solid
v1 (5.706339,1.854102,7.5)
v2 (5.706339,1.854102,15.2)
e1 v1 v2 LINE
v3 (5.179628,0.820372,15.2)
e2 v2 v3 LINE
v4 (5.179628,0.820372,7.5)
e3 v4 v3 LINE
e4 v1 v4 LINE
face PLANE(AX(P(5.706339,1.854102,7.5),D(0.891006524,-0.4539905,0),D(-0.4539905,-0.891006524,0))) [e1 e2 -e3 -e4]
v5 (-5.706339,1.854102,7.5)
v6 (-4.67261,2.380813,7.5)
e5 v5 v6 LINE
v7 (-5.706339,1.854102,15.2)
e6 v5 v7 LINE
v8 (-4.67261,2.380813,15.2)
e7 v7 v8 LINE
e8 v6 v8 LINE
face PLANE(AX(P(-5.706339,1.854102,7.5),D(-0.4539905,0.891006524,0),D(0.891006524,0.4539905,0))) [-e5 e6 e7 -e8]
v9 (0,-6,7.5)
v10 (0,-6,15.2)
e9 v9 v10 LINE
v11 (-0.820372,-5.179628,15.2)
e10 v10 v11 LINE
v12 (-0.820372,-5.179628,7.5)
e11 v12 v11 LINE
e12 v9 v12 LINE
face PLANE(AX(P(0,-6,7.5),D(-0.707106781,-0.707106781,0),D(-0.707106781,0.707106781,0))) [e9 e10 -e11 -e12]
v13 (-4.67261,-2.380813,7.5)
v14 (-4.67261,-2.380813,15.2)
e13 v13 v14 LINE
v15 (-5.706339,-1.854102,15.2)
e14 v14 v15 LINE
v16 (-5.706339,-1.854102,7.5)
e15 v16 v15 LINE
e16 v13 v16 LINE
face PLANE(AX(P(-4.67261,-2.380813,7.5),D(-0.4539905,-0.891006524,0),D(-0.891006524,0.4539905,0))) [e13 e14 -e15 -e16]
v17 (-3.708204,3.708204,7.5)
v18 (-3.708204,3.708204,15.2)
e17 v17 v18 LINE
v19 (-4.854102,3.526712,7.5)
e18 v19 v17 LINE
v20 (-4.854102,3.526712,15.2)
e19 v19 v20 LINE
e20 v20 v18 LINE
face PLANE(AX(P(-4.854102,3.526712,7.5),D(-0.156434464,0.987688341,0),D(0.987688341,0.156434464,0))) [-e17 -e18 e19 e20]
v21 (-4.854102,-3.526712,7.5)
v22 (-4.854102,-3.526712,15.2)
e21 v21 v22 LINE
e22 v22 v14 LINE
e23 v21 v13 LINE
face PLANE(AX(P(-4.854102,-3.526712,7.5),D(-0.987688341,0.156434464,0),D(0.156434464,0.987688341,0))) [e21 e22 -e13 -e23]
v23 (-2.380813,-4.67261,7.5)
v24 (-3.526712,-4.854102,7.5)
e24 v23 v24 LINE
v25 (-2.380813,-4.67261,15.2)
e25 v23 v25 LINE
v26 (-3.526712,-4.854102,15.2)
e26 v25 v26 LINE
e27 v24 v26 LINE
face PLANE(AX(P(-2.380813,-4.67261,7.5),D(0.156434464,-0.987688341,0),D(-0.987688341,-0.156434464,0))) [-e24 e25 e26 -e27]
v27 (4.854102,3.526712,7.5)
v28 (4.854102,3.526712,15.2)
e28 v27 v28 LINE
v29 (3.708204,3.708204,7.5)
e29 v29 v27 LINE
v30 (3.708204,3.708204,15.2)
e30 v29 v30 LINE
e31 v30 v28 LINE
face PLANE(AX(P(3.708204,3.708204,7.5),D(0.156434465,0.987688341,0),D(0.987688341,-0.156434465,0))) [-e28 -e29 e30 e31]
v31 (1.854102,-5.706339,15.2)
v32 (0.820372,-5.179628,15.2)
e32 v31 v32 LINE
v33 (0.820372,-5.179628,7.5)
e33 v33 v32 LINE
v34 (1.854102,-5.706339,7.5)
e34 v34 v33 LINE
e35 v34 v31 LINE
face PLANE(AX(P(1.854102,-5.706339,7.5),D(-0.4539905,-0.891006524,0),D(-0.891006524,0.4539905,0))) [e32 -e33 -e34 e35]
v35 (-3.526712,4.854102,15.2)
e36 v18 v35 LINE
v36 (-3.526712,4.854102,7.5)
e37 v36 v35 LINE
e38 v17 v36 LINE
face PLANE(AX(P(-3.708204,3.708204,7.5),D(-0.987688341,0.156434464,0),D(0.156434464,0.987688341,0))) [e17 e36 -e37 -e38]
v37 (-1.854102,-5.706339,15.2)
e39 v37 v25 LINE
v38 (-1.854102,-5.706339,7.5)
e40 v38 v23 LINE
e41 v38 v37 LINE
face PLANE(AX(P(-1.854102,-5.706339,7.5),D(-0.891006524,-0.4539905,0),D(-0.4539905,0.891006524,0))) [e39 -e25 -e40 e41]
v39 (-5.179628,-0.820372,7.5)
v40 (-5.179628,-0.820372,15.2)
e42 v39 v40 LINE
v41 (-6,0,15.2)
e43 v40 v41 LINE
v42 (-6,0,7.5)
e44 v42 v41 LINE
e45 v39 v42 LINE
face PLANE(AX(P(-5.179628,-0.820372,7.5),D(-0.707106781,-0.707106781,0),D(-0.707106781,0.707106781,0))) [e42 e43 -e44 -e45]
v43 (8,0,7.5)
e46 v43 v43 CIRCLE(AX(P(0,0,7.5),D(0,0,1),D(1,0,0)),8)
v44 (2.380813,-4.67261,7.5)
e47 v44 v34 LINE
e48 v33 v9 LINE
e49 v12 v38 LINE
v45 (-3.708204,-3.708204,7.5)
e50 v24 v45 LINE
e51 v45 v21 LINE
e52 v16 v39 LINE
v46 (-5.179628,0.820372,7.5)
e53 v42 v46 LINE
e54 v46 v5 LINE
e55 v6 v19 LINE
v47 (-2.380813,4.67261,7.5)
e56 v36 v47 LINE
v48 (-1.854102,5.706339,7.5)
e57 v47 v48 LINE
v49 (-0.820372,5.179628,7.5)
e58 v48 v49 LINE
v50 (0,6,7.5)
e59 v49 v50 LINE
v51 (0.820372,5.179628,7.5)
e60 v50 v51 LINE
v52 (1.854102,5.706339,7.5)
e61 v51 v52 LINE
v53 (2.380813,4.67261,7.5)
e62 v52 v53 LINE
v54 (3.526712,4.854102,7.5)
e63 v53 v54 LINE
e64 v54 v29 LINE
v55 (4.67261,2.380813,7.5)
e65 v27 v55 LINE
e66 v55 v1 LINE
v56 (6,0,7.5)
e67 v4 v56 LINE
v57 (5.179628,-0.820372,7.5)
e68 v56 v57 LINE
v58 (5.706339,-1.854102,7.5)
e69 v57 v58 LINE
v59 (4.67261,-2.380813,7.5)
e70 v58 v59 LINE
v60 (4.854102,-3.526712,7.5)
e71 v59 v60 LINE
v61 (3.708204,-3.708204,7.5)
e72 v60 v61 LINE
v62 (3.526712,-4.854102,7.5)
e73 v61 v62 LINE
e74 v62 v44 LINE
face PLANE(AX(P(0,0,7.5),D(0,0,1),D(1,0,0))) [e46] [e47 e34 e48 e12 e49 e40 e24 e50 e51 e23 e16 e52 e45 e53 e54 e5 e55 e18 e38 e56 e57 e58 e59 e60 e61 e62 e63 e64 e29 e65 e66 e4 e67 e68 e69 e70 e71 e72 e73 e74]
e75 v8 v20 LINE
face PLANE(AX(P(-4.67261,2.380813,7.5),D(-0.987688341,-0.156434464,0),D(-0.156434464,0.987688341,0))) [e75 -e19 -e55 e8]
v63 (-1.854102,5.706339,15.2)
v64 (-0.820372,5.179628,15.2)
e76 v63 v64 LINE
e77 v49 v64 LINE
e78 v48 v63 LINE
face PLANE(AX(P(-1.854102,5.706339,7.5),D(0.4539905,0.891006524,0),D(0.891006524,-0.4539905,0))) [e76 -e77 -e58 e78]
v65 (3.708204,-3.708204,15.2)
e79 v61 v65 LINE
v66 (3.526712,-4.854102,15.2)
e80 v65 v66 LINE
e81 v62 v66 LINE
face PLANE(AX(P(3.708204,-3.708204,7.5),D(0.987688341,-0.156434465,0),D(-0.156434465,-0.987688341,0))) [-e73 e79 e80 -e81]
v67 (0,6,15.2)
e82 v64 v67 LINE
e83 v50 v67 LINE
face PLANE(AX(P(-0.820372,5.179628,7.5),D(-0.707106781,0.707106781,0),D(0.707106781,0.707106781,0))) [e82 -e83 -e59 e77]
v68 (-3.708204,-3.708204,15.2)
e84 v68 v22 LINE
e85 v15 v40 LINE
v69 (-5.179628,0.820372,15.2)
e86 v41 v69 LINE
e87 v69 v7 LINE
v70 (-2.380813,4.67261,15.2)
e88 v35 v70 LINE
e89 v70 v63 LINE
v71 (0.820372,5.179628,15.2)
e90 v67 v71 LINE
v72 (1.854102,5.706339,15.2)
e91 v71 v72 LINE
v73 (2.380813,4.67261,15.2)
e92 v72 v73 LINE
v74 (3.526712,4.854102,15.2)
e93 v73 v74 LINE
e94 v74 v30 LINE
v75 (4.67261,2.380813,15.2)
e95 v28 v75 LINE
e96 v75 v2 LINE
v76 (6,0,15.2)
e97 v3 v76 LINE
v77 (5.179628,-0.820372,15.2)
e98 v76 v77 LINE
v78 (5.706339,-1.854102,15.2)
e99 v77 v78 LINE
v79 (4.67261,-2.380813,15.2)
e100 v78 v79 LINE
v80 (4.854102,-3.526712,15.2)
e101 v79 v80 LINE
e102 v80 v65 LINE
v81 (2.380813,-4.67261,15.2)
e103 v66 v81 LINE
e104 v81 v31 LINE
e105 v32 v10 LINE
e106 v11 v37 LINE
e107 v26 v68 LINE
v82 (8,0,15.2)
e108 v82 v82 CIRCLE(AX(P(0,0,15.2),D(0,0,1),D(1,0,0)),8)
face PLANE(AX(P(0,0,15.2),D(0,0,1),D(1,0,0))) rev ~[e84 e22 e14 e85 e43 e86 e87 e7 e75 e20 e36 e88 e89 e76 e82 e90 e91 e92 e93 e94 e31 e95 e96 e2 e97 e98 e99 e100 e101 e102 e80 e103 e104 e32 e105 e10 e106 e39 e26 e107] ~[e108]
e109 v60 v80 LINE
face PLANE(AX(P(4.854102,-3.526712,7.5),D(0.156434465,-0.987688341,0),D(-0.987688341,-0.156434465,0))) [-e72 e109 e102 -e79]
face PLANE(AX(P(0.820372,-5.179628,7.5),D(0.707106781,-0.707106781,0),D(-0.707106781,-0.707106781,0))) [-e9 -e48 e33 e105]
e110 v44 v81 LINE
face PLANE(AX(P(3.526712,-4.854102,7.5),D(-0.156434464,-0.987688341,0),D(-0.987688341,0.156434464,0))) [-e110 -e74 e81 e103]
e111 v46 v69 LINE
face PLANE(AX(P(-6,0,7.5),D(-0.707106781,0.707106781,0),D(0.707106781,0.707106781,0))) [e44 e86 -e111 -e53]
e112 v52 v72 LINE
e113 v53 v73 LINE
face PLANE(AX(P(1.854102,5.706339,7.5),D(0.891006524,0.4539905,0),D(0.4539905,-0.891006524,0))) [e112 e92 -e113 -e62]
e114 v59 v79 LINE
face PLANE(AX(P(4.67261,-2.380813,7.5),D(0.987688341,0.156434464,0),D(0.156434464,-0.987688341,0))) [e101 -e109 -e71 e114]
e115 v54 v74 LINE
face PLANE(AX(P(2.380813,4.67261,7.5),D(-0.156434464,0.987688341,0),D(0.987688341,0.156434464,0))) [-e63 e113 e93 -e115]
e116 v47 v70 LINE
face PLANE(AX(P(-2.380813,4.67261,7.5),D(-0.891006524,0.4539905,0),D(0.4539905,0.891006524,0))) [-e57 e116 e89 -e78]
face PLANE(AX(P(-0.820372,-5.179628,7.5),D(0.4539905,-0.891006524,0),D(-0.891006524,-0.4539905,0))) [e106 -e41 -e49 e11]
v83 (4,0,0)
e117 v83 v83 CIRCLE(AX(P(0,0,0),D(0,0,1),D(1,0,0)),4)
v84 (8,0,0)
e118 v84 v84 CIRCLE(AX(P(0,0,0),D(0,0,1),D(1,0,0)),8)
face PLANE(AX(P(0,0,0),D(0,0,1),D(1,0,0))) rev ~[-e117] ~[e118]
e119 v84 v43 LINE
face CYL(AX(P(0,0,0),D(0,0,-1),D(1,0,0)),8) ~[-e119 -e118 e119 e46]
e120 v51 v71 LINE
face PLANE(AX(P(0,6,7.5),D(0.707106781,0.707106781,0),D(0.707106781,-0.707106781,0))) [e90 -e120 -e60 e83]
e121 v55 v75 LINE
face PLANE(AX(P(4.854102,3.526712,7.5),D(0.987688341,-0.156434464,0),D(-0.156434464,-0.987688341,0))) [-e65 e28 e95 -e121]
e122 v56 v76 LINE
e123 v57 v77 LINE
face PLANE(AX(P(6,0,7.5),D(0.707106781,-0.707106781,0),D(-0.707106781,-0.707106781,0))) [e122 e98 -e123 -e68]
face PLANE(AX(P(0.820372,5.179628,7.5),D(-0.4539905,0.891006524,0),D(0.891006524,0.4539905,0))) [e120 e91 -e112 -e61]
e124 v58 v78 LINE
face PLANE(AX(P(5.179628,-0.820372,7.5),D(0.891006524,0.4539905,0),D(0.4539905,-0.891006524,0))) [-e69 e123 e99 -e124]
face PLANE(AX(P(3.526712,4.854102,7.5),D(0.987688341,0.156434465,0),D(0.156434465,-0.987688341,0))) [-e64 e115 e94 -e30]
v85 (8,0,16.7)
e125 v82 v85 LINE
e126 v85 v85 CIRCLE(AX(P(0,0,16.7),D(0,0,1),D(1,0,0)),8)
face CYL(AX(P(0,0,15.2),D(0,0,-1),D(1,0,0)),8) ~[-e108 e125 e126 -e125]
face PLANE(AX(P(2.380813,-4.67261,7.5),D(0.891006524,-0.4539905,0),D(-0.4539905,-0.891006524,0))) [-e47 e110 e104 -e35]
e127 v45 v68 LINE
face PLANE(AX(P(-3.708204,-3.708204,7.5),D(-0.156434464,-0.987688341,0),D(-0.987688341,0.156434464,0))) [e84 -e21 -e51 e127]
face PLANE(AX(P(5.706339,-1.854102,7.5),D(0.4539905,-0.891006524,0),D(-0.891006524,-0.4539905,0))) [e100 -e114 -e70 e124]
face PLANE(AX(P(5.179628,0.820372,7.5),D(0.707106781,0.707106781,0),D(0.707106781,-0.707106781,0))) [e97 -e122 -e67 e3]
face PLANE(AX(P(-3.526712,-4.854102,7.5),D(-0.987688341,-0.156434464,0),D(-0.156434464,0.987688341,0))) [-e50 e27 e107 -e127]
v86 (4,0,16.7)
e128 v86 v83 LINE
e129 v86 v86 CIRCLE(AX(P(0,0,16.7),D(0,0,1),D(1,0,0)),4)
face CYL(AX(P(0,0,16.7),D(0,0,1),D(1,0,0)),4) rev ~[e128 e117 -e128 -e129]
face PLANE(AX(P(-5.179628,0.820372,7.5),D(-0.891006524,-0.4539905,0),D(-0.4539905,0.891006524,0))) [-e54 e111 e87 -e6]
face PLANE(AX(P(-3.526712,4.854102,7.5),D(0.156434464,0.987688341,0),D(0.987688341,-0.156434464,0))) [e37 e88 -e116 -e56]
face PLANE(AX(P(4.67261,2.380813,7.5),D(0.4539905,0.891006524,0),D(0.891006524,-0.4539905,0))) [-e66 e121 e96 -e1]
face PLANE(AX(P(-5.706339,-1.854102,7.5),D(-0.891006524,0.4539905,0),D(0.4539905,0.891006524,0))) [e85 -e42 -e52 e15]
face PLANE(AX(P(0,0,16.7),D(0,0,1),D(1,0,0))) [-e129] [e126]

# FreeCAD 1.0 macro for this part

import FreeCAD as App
import Part
import Sketcher
Q = App.Units.Quantity

doc = App.newDocument("Part")
body = doc.addObject("PartDesign::Body", "Body")

# Sketch on XY plane
sketch1 = body.newObject("Sketcher::SketchObject", "Sketch")
sketch1.AttachmentSupport = (doc.getObject("XY_Plane"), [""])
sketch1.MapMode = "FlatFace"
sketch1.addGeometry(Part.Circle(App.Vector(0, 0, 0), App.Vector(0, 0, 1), 8), False)
sketch1.addConstraint([
    Sketcher.Constraint("Coincident", 0, 3, -1, 1),
    Sketcher.Constraint("Diameter", 0, 16.0),
])
pad1 = body.newObject("PartDesign::Pad", "Pad")
pad1.Profile = sketch1
pad1.Length = 7.5

# Sketch on XY plane
sketch2 = body.newObject("Sketcher::SketchObject", "Sketch001")
sketch2.AttachmentSupport = (doc.getObject("XY_Plane"), [""])
sketch2.MapMode = "FlatFace"
sketch2.AttachmentOffset = App.Placement(App.Vector(0, 0, 7.5), App.Rotation())
sketch2.addGeometry([
    Part.LineSegment(App.Vector(0, 6, 0), App.Vector(-0.8, 5.2, 0)),  # 0
    Part.LineSegment(App.Vector(-0.8, 5.2, 0), App.Vector(-1.9, 5.7, 0)),  # 1
    Part.LineSegment(App.Vector(-1.9, 5.7, 0), App.Vector(-2.4, 4.7, 0)),  # 2
    Part.LineSegment(App.Vector(-2.4, 4.7, 0), App.Vector(-3.5, 4.9, 0)),  # 3
    Part.LineSegment(App.Vector(-3.5, 4.9, 0), App.Vector(-3.7, 3.7, 0)),  # 4
    Part.LineSegment(App.Vector(-3.7, 3.7, 0), App.Vector(-4.9, 3.5, 0)),  # 5
    Part.LineSegment(App.Vector(-4.9, 3.5, 0), App.Vector(-4.7, 2.4, 0)),  # 6
    Part.LineSegment(App.Vector(-4.7, 2.4, 0), App.Vector(-5.7, 1.9, 0)),  # 7
    Part.LineSegment(App.Vector(-5.7, 1.9, 0), App.Vector(-5.2, 0.8, 0)),  # 8
    Part.LineSegment(App.Vector(-5.2, 0.8, 0), App.Vector(-6, 0, 0)),  # 9
    Part.LineSegment(App.Vector(-6, 0, 0), App.Vector(-5.2, -0.8, 0)),  # 10
    Part.LineSegment(App.Vector(-5.2, -0.8, 0), App.Vector(-5.7, -1.9, 0)),  # 11
    Part.LineSegment(App.Vector(-5.7, -1.9, 0), App.Vector(-4.7, -2.4, 0)),  # 12
    Part.LineSegment(App.Vector(-4.7, -2.4, 0), App.Vector(-4.9, -3.5, 0)),  # 13
    Part.LineSegment(App.Vector(-4.9, -3.5, 0), App.Vector(-3.7, -3.7, 0)),  # 14
    Part.LineSegment(App.Vector(-3.7, -3.7, 0), App.Vector(-3.5, -4.9, 0)),  # 15
    Part.LineSegment(App.Vector(-3.5, -4.9, 0), App.Vector(-2.4, -4.7, 0)),  # 16
    Part.LineSegment(App.Vector(-2.4, -4.7, 0), App.Vector(-1.9, -5.7, 0)),  # 17
    Part.LineSegment(App.Vector(-1.9, -5.7, 0), App.Vector(-0.8, -5.2, 0)),  # 18
    Part.LineSegment(App.Vector(-0.8, -5.2, 0), App.Vector(0, -6, 0)),  # 19
    Part.LineSegment(App.Vector(0, -6, 0), App.Vector(0.8, -5.2, 0)),  # 20
    Part.LineSegment(App.Vector(0.8, -5.2, 0), App.Vector(1.9, -5.7, 0)),  # 21
    Part.LineSegment(App.Vector(1.9, -5.7, 0), App.Vector(2.4, -4.7, 0)),  # 22
    Part.LineSegment(App.Vector(2.4, -4.7, 0), App.Vector(3.5, -4.9, 0)),  # 23
    Part.LineSegment(App.Vector(3.5, -4.9, 0), App.Vector(3.7, -3.7, 0)),  # 24
    Part.LineSegment(App.Vector(3.7, -3.7, 0), App.Vector(4.9, -3.5, 0)),  # 25
    Part.LineSegment(App.Vector(4.9, -3.5, 0), App.Vector(4.7, -2.4, 0)),  # 26
    Part.LineSegment(App.Vector(4.7, -2.4, 0), App.Vector(5.7, -1.9, 0)),  # 27
    Part.LineSegment(App.Vector(5.7, -1.9, 0), App.Vector(5.2, -0.8, 0)),  # 28
    Part.LineSegment(App.Vector(5.2, -0.8, 0), App.Vector(6, 0, 0)),  # 29
    Part.LineSegment(App.Vector(6, 0, 0), App.Vector(5.2, 0.8, 0)),  # 30
    Part.LineSegment(App.Vector(5.2, 0.8, 0), App.Vector(5.7, 1.9, 0)),  # 31
    Part.LineSegment(App.Vector(5.7, 1.9, 0), App.Vector(4.7, 2.4, 0)),  # 32
    Part.LineSegment(App.Vector(4.7, 2.4, 0), App.Vector(4.9, 3.5, 0)),  # 33
    Part.LineSegment(App.Vector(4.9, 3.5, 0), App.Vector(3.7, 3.7, 0)),  # 34
    Part.LineSegment(App.Vector(3.7, 3.7, 0), App.Vector(3.5, 4.9, 0)),  # 35
    Part.LineSegment(App.Vector(3.5, 4.9, 0), App.Vector(2.4, 4.7, 0)),  # 36
    Part.LineSegment(App.Vector(2.4, 4.7, 0), App.Vector(1.9, 5.7, 0)),  # 37
    Part.LineSegment(App.Vector(1.9, 5.7, 0), App.Vector(0.8, 5.2, 0)),  # 38
    Part.LineSegment(App.Vector(0.8, 5.2, 0), App.Vector(0, 6, 0)),  # 39
], False)
sketch2.addConstraint([
    Sketcher.Constraint("Coincident", 0, 2, 1, 1),
    Sketcher.Constraint("Coincident", 1, 2, 2, 1),
    Sketcher.Constraint("Coincident", 2, 2, 3, 1),
    Sketcher.Constraint("Coincident", 3, 2, 4, 1),
    Sketcher.Constraint("Coincident", 4, 2, 5, 1),
    Sketcher.Constraint("Coincident", 5, 2, 6, 1),
    Sketcher.Constraint("Coincident", 6, 2, 7, 1),
    Sketcher.Constraint("Coincident", 7, 2, 8, 1),
    Sketcher.Constraint("Coincident", 8, 2, 9, 1),
    Sketcher.Constraint("Coincident", 9, 2, 10, 1),
    Sketcher.Constraint("Coincident", 10, 2, 11, 1),
    Sketcher.Constraint("Coincident", 11, 2, 12, 1),
    Sketcher.Constraint("Coincident", 12, 2, 13, 1),
    Sketcher.Constraint("Coincident", 13, 2, 14, 1),
    Sketcher.Constraint("Coincident", 14, 2, 15, 1),
    Sketcher.Constraint("Coincident", 15, 2, 16, 1),
    Sketcher.Constraint("Coincident", 16, 2, 17, 1),
    Sketcher.Constraint("Coincident", 17, 2, 18, 1),
    Sketcher.Constraint("Coincident", 18, 2, 19, 1),
    Sketcher.Constraint("Coincident", 19, 2, 20, 1),
    Sketcher.Constraint("Coincident", 20, 2, 21, 1),
    Sketcher.Constraint("Coincident", 21, 2, 22, 1),
    Sketcher.Constraint("Coincident", 22, 2, 23, 1),
    Sketcher.Constraint("Coincident", 23, 2, 24, 1),
    Sketcher.Constraint("Coincident", 24, 2, 25, 1),
    Sketcher.Constraint("Coincident", 25, 2, 26, 1),
    Sketcher.Constraint("Coincident", 26, 2, 27, 1),
    Sketcher.Constraint("Coincident", 27, 2, 28, 1),
    Sketcher.Constraint("Coincident", 28, 2, 29, 1),
    Sketcher.Constraint("Coincident", 29, 2, 30, 1),
    Sketcher.Constraint("Coincident", 30, 2, 31, 1),
    Sketcher.Constraint("Coincident", 31, 2, 32, 1),
    Sketcher.Constraint("Coincident", 32, 2, 33, 1),
    Sketcher.Constraint("Coincident", 33, 2, 34, 1),
    Sketcher.Constraint("Coincident", 34, 2, 35, 1),
    Sketcher.Constraint("Coincident", 35, 2, 36, 1),
    Sketcher.Constraint("Coincident", 36, 2, 37, 1),
    Sketcher.Constraint("Coincident", 37, 2, 38, 1),
    Sketcher.Constraint("Coincident", 38, 2, 39, 1),
    Sketcher.Constraint("Coincident", 39, 2, 0, 1),
    Sketcher.Constraint("Symmetric", 0, 2, 20, 2, -1, 1),
    Sketcher.Constraint("Symmetric", 1, 2, 21, 2, -1, 1),
    Sketcher.Constraint("Symmetric", 2, 2, 22, 2, -1, 1),
    Sketcher.Constraint("Symmetric", 3, 2, 23, 2, -1, 1),
    Sketcher.Constraint("Symmetric", 4, 2, 24, 2, -1, 1),
    Sketcher.Constraint("Symmetric", 5, 2, 25, 2, -1, 1),
    Sketcher.Constraint("Symmetric", 6, 2, 26, 2, -1, 1),
    Sketcher.Constraint("Symmetric", 7, 2, 27, 2, -1, 1),
    Sketcher.Constraint("Symmetric", 8, 2, 28, 2, -1, 1),
    Sketcher.Constraint("Symmetric", 9, 2, 29, 2, -1, 1),
    Sketcher.Constraint("Symmetric", 10, 2, 30, 2, -1, 1),
    Sketcher.Constraint("Symmetric", 11, 2, 31, 2, -1, 1),
    Sketcher.Constraint("Symmetric", 12, 2, 32, 2, -1, 1),
    Sketcher.Constraint("Symmetric", 13, 2, 33, 2, -1, 1),
    Sketcher.Constraint("Symmetric", 14, 2, 34, 2, -1, 1),
    Sketcher.Constraint("Symmetric", 15, 2, 35, 2, -1, 1),
    Sketcher.Constraint("Symmetric", 16, 2, 36, 2, -1, 1),
    Sketcher.Constraint("Symmetric", 17, 2, 37, 2, -1, 1),
    Sketcher.Constraint("Symmetric", 18, 2, 38, 2, -1, 1),
    Sketcher.Constraint("Symmetric", 19, 2, 39, 2, -1, 1),
    Sketcher.Constraint("Symmetric", 18, 2, 20, 2, -2),
    Sketcher.Constraint("Symmetric", 17, 2, 21, 2, -2),
    Sketcher.Constraint("Symmetric", 16, 2, 22, 2, -2),
    Sketcher.Constraint("Symmetric", 15, 2, 23, 2, -2),
    Sketcher.Constraint("Symmetric", 14, 2, 24, 2, -2),
    Sketcher.Constraint("Symmetric", 13, 2, 25, 2, -2),
    Sketcher.Constraint("Symmetric", 12, 2, 26, 2, -2),
    Sketcher.Constraint("Symmetric", 11, 2, 27, 2, -2),
    Sketcher.Constraint("Symmetric", 10, 2, 28, 2, -2),
    Sketcher.Constraint("PointOnObject", 9, 2, -1),
    Sketcher.Constraint("PointOnObject", 19, 2, -2),
    Sketcher.Constraint("Perpendicular", 1, 2),
    Sketcher.Constraint("Perpendicular", 3, 4),
    Sketcher.Constraint("Perpendicular", 5, 6),
    Sketcher.Constraint("Perpendicular", 7, 8),
    Sketcher.Constraint("Parallel", 0, 9),
    Sketcher.Constraint("Perpendicular", 9, 10),
    Sketcher.Constraint("Parallel", 2, 11),
    Sketcher.Constraint("Parallel", 4, 13),
    Sketcher.Constraint("Equal", 0, 1),
    Sketcher.Constraint("Equal", 1, 2),
    Sketcher.Constraint("Equal", 2, 3),
    Sketcher.Constraint("Equal", 3, 4),
    Sketcher.Constraint("Equal", 4, 5),
    Sketcher.Constraint("Equal", 5, 6),
    Sketcher.Constraint("Equal", 6, 7),
    Sketcher.Constraint("Equal", 7, 8),
    Sketcher.Constraint("Equal", 8, 9),
    Sketcher.Constraint("Angle", 1, Q("153 deg")),
    Sketcher.Constraint("Angle", 3, Q("171 deg")),
    Sketcher.Constraint("DistanceX", 9, 2, -1, 1, 6.0),
])
pad2 = body.newObject("PartDesign::Pad", "Pad001")
pad2.Profile = sketch2
pad2.Length = 7.7

# Sketch on XY plane
sketch3 = body.newObject("Sketcher::SketchObject", "Sketch002")
sketch3.AttachmentSupport = (doc.getObject("XY_Plane"), [""])
sketch3.MapMode = "FlatFace"
sketch3.AttachmentOffset = App.Placement(App.Vector(0, 0, 15.2), App.Rotation())
sketch3.addGeometry(Part.Circle(App.Vector(0, 0, 0), App.Vector(0, 0, 1), 8), False)
sketch3.addConstraint([
    Sketcher.Constraint("Coincident", 0, 3, -1, 1),
    Sketcher.Constraint("Diameter", 0, 16.0),
])
pad3 = body.newObject("PartDesign::Pad", "Pad002")
pad3.Profile = sketch3
pad3.Length = 1.5

# Sketch on XY plane
sketch4 = body.newObject("Sketcher::SketchObject", "Sketch003")
sketch4.AttachmentSupport = (doc.getObject("XY_Plane"), [""])
sketch4.MapMode = "FlatFace"
sketch4.AttachmentOffset = App.Placement(App.Vector(0, 0, 16.7), App.Rotation())
sketch4.addGeometry(Part.Circle(App.Vector(0, 0, 0), App.Vector(0, 0, 1), 4), False)
sketch4.addConstraint([
    Sketcher.Constraint("Coincident", 0, 3, -1, 1),
    Sketcher.Constraint("Diameter", 0, 8.0),
])
pocket1 = body.newObject("PartDesign::Pocket", "Pocket")
pocket1.Profile = sketch4
pocket1.Length = 17.5

doc.recompute()
